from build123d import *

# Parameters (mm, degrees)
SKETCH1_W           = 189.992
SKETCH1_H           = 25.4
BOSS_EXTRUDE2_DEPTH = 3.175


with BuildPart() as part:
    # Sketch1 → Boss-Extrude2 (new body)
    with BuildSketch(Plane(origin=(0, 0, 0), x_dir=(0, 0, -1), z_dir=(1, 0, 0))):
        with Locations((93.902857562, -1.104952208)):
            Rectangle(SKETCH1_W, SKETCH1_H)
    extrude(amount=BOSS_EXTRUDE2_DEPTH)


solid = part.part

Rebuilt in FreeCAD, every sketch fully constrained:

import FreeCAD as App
import Part
import Sketcher

V = App.Vector
Q = App.Units.Quantity


def add_polygon(sketch, points):
    """Adds a closed chain of lines whose ends are joined by coincident constraints."""
    first, n = sketch.GeometryCount, len(points)
    for a, b in zip(points, points[1:] + points[:1]):
        sketch.addGeometry(Part.LineSegment(App.Vector(*a, 0), App.Vector(*b, 0)), False)
    for i in range(n):
        sketch.addConstraint(Sketcher.Constraint("Coincident", first + i, 2, first + (i + 1) % n, 1))

doc = App.newDocument("Part")
params = doc.addObject("Spreadsheet::Sheet", "Params")
for row, (alias, value) in enumerate([
    ("sketch1_width", "1 in"),
    ("sketch1_height", "7.48 in"),
    ("pad1_length", "0.125 in"),
], start=1):
    params.set(f"A{row}", alias)
    params.set(f"B{row}", "=" + value)
    params.setAlias(f"B{row}", alias)

body = doc.addObject("PartDesign::Body", "Body")

# Sketch on YZ plane
sketch1 = body.newObject("Sketcher::SketchObject", "Sketch")
sketch1.AttachmentSupport = (doc.getObject("YZ_Plane"), [""])
sketch1.MapMode = "FlatFace"
add_polygon(sketch1, [(11.595048, 1.093142), (-13.804952, 1.093142), (-13.804952, -188.898858), (11.595048, -188.898858)])  # lines 0-3
sketch1.addConstraint([
    Sketcher.Constraint("Horizontal", 0),
    Sketcher.Constraint("Vertical", 1),
    Sketcher.Constraint("Horizontal", 2),
    Sketcher.Constraint("Vertical", 3),
    Sketcher.Constraint("DistanceX", 0, 2, 0, 1, Q("1 in")),
    Sketcher.Constraint("DistanceY", 1, 2, 1, 1, Q("7.48 in")),
    Sketcher.Constraint("DistanceX", 0, 2, -1, 1, 13.804952),
    Sketcher.Constraint("DistanceY", -1, 1, 0, 2, 1.093142),
])
sketch1.setExpression("Constraints[8]", "Params.sketch1_width")
sketch1.setExpression("Constraints[9]", "Params.sketch1_height")
pad1 = body.newObject("PartDesign::Pad", "Pad")
pad1.Profile = sketch1
pad1.setExpression("Length", "Params.pad1_length")

doc.recompute()
